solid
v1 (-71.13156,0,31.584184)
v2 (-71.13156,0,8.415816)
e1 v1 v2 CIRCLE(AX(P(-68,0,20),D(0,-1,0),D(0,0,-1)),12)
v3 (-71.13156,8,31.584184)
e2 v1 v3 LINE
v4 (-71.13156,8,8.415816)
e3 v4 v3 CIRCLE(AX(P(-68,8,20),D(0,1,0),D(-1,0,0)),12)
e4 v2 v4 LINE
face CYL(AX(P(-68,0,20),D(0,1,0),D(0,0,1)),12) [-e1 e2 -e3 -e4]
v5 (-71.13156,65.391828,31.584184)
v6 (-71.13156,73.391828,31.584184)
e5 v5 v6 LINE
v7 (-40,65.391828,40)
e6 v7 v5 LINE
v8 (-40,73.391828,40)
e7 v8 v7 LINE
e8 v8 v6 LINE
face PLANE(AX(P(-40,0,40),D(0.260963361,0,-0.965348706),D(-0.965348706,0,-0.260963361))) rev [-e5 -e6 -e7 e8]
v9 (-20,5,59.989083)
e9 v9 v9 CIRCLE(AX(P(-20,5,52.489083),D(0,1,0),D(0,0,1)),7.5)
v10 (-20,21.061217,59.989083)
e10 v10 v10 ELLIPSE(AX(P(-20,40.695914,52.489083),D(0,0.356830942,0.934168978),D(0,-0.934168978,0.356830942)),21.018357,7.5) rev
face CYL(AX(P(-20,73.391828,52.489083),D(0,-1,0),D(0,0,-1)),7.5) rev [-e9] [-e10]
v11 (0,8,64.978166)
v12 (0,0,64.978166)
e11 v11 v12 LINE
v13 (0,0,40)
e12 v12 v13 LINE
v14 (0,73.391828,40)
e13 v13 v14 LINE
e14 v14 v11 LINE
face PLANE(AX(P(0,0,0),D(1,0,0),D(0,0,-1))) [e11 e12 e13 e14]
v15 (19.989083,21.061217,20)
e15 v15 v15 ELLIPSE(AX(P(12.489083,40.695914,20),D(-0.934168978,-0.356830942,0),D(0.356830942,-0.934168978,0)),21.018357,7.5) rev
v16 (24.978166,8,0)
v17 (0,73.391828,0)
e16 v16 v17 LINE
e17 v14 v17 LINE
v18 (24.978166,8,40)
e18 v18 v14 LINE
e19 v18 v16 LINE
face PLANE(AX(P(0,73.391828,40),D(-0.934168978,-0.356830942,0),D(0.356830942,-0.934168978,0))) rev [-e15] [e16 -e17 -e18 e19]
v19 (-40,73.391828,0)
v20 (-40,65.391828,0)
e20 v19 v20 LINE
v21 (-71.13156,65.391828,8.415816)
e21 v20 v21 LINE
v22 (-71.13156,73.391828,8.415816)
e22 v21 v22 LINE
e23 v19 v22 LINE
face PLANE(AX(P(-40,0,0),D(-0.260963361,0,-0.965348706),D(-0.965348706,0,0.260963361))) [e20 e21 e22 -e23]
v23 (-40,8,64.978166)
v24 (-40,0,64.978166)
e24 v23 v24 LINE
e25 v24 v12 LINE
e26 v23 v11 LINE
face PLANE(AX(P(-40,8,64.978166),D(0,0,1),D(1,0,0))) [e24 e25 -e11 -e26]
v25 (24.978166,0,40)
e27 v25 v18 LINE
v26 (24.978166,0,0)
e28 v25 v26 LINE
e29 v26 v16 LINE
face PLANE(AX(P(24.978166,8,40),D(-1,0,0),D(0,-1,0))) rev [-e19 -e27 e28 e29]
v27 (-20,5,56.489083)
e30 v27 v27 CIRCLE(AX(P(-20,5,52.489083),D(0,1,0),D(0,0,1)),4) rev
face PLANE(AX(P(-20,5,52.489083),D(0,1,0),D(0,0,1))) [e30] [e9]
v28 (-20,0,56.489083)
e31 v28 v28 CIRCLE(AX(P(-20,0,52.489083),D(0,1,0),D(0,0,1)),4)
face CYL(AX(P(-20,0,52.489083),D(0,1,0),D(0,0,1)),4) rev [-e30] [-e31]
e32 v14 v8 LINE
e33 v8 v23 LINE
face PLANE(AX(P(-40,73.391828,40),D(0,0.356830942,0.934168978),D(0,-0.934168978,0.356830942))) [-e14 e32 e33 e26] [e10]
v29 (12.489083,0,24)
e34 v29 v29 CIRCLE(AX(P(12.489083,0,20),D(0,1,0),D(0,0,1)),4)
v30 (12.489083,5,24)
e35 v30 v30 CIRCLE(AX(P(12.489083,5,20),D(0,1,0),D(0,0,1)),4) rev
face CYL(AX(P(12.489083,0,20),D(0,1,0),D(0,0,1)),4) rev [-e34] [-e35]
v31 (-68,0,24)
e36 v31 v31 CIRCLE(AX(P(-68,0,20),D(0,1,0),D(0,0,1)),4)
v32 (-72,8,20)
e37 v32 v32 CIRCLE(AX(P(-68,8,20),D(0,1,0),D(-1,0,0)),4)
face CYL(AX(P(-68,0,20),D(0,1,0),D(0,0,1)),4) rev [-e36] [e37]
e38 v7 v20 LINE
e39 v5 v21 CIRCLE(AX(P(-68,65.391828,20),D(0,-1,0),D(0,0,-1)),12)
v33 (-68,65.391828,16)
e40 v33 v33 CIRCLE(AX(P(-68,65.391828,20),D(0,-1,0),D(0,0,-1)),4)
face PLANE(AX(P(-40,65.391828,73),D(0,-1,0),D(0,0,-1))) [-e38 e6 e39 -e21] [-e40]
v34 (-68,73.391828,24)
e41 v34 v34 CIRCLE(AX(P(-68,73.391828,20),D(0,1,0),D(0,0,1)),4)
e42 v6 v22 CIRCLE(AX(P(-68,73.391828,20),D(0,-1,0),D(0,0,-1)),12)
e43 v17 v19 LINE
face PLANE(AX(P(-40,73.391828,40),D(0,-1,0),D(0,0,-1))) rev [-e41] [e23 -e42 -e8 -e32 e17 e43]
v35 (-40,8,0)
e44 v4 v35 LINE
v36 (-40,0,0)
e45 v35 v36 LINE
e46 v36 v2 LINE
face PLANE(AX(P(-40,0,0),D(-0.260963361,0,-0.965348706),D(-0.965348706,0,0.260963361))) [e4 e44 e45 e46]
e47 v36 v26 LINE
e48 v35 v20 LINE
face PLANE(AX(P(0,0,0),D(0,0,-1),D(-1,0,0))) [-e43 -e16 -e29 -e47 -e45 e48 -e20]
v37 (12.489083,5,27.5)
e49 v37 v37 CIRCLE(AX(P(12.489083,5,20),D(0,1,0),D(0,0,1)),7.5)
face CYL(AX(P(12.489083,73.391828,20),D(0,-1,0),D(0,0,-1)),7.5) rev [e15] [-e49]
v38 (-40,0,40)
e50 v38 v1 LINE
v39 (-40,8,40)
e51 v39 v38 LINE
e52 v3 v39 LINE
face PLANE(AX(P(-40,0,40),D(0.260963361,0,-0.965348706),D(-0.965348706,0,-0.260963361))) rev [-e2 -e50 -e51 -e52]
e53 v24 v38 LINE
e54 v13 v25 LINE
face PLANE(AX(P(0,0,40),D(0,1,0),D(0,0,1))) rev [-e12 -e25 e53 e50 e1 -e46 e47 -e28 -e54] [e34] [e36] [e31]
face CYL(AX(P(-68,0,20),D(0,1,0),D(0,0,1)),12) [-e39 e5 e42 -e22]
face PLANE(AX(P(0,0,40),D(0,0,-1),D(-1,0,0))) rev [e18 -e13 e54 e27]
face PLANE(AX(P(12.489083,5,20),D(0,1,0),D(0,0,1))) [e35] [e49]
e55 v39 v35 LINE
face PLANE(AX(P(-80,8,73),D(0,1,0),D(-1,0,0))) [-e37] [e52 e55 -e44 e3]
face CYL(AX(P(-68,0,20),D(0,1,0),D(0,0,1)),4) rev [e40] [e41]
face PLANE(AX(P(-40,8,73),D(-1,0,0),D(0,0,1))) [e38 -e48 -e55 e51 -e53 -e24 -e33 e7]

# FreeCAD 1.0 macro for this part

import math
import FreeCAD as App
import Part
import Sketcher
Q = App.Units.Quantity


def add_polygon(sketch, points):
    """Adds a closed chain of lines whose ends are joined by coincident constraints."""
    first, n = sketch.GeometryCount, len(points)
    for a, b in zip(points, points[1:] + points[:1]):
        sketch.addGeometry(Part.LineSegment(App.Vector(*a, 0), App.Vector(*b, 0)), False)
    for i in range(n):
        sketch.addConstraint(Sketcher.Constraint("Coincident", first + i, 2, first + (i + 1) % n, 1))

doc = App.newDocument("Part")
body = doc.addObject("PartDesign::Body", "Body")

# Sketch on XY plane
sketch1 = doc.addObject("Sketcher::SketchObject", "Sketch")
body.addObject(sketch1)
sketch1.AttachmentSupport = (doc.XY_Plane, [""])
sketch1.MapMode = "FlatFace"
add_polygon(sketch1, [(-40, 0), (24.978166, 0), (24.978166, 8), (0, 73.391828), (-40, 73.391828)])  # lines 0-4
sketch1.addConstraint(Sketcher.Constraint("Horizontal", 0))
sketch1.addConstraint(Sketcher.Constraint("Vertical", 1))
sketch1.addConstraint(Sketcher.Constraint("Horizontal", 3))
sketch1.addConstraint(Sketcher.Constraint("Vertical", 4))
sketch1.addConstraint(Sketcher.Constraint("PointOnObject", 0, 2, -1))
sketch1.addConstraint(Sketcher.Constraint("PointOnObject", 2, 2, -2))
sketch1.addConstraint(Sketcher.Constraint("DistanceX", 3, 2, 3, 1, Q("40 mm")))
sketch1.addConstraint(Sketcher.Constraint("DistanceY", 1, 1, 1, 2, Q("8 mm")))
sketch1.addConstraint(Sketcher.Constraint("Distance", 2, Q("70 mm")))
sketch1.addConstraint(Sketcher.Constraint("DistanceY", 4, 2, 4, 1, Q("73.391828 mm")))
pad1 = doc.addObject("PartDesign::Pad", "Pad")
body.addObject(pad1)
pad1.Profile = sketch1
pad1.Length = 40

# Sketch on XZ plane
sketch2 = doc.addObject("Sketcher::SketchObject", "Sketch001")
body.addObject(sketch2)
sketch2.AttachmentSupport = (doc.XZ_Plane, [""])
sketch2.MapMode = "FlatFace"
sketch2.AttachmentOffset = App.Placement(App.Vector(0, 0, -73.391828), App.Rotation())
sketch2.addGeometry(Part.LineSegment(App.Vector(-71.13156, 31.584184, 0), App.Vector(-40, 40, 0)), False)
sketch2.addGeometry(Part.LineSegment(App.Vector(-40, 40, 0), App.Vector(-40, 0, 0)), False)
sketch2.addGeometry(Part.LineSegment(App.Vector(-40, 0, 0), App.Vector(-71.13156, 8.415816, 0)), False)
sketch2.addGeometry(Part.ArcOfCircle(Part.Circle(App.Vector(-68, 20, 0), App.Vector(0, 0, 1), 12), math.radians(105.127232), math.radians(254.872768)), False)
sketch2.addConstraint(Sketcher.Constraint("Coincident", 0, 2, 1, 1))
sketch2.addConstraint(Sketcher.Constraint("Coincident", 1, 2, 2, 1))
sketch2.addConstraint(Sketcher.Constraint("Tangent", 2, 2, 3, 2))
sketch2.addConstraint(Sketcher.Constraint("Tangent", 3, 1, 0, 1))
sketch2.addConstraint(Sketcher.Constraint("Vertical", 1))
sketch2.addConstraint(Sketcher.Constraint("PointOnObject", 1, 2, -1))
sketch2.addConstraint(Sketcher.Constraint("Vertical", 2, 2, 3, 1))
sketch2.addConstraint(Sketcher.Constraint("Radius", 3, Q("12 mm")))
sketch2.addConstraint(Sketcher.Constraint("DistanceY", 1, 2, 1, 1, Q("40 mm")))
sketch2.addConstraint(Sketcher.Constraint("DistanceX", 3, 3, -1, 1, Q("68 mm")))
sketch2.addConstraint(Sketcher.Constraint("DistanceX", 0, 2, -1, 1, Q("40 mm")))
pad2 = doc.addObject("PartDesign::Pad", "Pad001")
body.addObject(pad2)
pad2.Profile = sketch2
pad2.Length = 73.391828

# Sketch on XY plane
sketch3 = doc.addObject("Sketcher::SketchObject", "Sketch002")
body.addObject(sketch3)
sketch3.AttachmentSupport = (doc.XY_Plane, [""])
sketch3.MapMode = "FlatFace"
add_polygon(sketch3, [(-80, 65.391828), (-80, 8), (-40, 8), (-40, 65.391828)])  # lines 0-3
sketch3.addConstraint(Sketcher.Constraint("Vertical", 0))
sketch3.addConstraint(Sketcher.Constraint("Horizontal", 1))
sketch3.addConstraint(Sketcher.Constraint("Vertical", 2))
sketch3.addConstraint(Sketcher.Constraint("Horizontal", 3))
sketch3.addConstraint(Sketcher.Constraint("DistanceX", 1, 1, 1, 2, Q("40 mm")))
sketch3.addConstraint(Sketcher.Constraint("DistanceX", 0, 2, -1, 1, Q("80 mm")))
sketch3.addConstraint(Sketcher.Constraint("DistanceY", -1, 1, 0, 2, Q("8 mm")))
sketch3.addConstraint(Sketcher.Constraint("DistanceY", 0, 2, 0, 1, Q("57.391828 mm")))
pocket1 = doc.addObject("PartDesign::Pocket", "Pocket")
body.addObject(pocket1)
pocket1.Profile = sketch3
pocket1.Length = 73
pocket1.Reversed = True

# Sketch on YZ plane
sketch4 = doc.addObject("Sketcher::SketchObject", "Sketch003")
body.addObject(sketch4)
sketch4.AttachmentSupport = (doc.YZ_Plane, [""])
sketch4.MapMode = "FlatFace"
add_polygon(sketch4, [(73.391828, 40), (8, 64.978166), (0, 64.978166), (0, 40)])  # lines 0-3
sketch4.addConstraint(Sketcher.Constraint("Horizontal", 1))
sketch4.addConstraint(Sketcher.Constraint("Vertical", 2))
sketch4.addConstraint(Sketcher.Constraint("Horizontal", 3))
sketch4.addConstraint(Sketcher.Constraint("PointOnObject", 1, 2, -2))
sketch4.addConstraint(Sketcher.Constraint("DistanceX", 1, 2, 1, 1, Q("8 mm")))
sketch4.addConstraint(Sketcher.Constraint("Distance", 0, Q("70 mm")))
sketch4.addConstraint(Sketcher.Constraint("DistanceY", -1, 1, 2, 2, Q("40 mm")))
sketch4.addConstraint(Sketcher.Constraint("DistanceX", 3, 1, 3, 2, Q("73.391828 mm")))
pad3 = doc.addObject("PartDesign::Pad", "Pad002")
body.addObject(pad3)
pad3.Profile = sketch4
pad3.Length = 40
pad3.Reversed = True

# Sketch on XZ plane
sketch5 = doc.addObject("Sketcher::SketchObject", "Sketch004")
body.addObject(sketch5)
sketch5.AttachmentSupport = (doc.XZ_Plane, [""])
sketch5.MapMode = "FlatFace"
sketch5.AttachmentOffset = App.Placement(App.Vector(0, 0, -73.391828), App.Rotation())
sketch5.addGeometry(Part.Circle(App.Vector(12.489083, 20, 0), App.Vector(0, 0, 1), 4), False)
sketch5.addGeometry(Part.Circle(App.Vector(-20, 52.489083, 0), App.Vector(0, 0, 1), 4), False)
sketch5.addGeometry(Part.Circle(App.Vector(-68, 20, 0), App.Vector(0, 0, 1), 4), False)
sketch5.addConstraint(Sketcher.Constraint("Equal", 0, 1))
sketch5.addConstraint(Sketcher.Constraint("Equal", 1, 2))
sketch5.addConstraint(Sketcher.Constraint("Horizontal", 0, 3, 2, 3))
sketch5.addConstraint(Sketcher.Constraint("Diameter", 0, Q("8 mm")))
sketch5.addConstraint(Sketcher.Constraint("DistanceY", -1, 1, 0, 3, Q("20 mm")))
sketch5.addConstraint(Sketcher.Constraint("DistanceX", 1, 3, -1, 1, Q("20 mm")))
sketch5.addConstraint(Sketcher.Constraint("DistanceX", 2, 3, -1, 1, Q("68 mm")))
sketch5.addConstraint(Sketcher.Constraint("DistanceX", -1, 1, 0, 3, Q("12.489083 mm")))
sketch5.addConstraint(Sketcher.Constraint("DistanceY", -1, 1, 1, 3, Q("52.489083 mm")))
pocket2 = doc.addObject("PartDesign::Pocket", "Pocket001")
body.addObject(pocket2)
pocket2.Profile = sketch5
pocket2.Type = "ThroughAll"
pocket2.Reversed = True

# Sketch on XZ plane
sketch6 = doc.addObject("Sketcher::SketchObject", "Sketch005")
body.addObject(sketch6)
sketch6.AttachmentSupport = (doc.XZ_Plane, [""])
sketch6.MapMode = "FlatFace"
sketch6.AttachmentOffset = App.Placement(App.Vector(0, 0, -5), App.Rotation())
sketch6.addGeometry(Part.Circle(App.Vector(12.489083, 20, 0), App.Vector(0, 0, 1), 7.5), False)
sketch6.addGeometry(Part.Circle(App.Vector(-20, 52.489083, 0), App.Vector(0, 0, 1), 7.5), False)
sketch6.addConstraint(Sketcher.Constraint("Equal", 0, 1))
sketch6.addConstraint(Sketcher.Constraint("Diameter", 0, Q("15 mm")))
sketch6.addConstraint(Sketcher.Constraint("DistanceY", -1, 1, 0, 3, Q("20 mm")))
sketch6.addConstraint(Sketcher.Constraint("DistanceX", 1, 3, -1, 1, Q("20 mm")))
sketch6.addConstraint(Sketcher.Constraint("DistanceX", -1, 1, 0, 3, Q("12.489083 mm")))
sketch6.addConstraint(Sketcher.Constraint("DistanceY", -1, 1, 1, 3, Q("52.489083 mm")))
pocket3 = doc.addObject("PartDesign::Pocket", "Pocket002")
body.addObject(pocket3)
pocket3.Profile = sketch6
pocket3.Type = "ThroughAll"

doc.recompute()
